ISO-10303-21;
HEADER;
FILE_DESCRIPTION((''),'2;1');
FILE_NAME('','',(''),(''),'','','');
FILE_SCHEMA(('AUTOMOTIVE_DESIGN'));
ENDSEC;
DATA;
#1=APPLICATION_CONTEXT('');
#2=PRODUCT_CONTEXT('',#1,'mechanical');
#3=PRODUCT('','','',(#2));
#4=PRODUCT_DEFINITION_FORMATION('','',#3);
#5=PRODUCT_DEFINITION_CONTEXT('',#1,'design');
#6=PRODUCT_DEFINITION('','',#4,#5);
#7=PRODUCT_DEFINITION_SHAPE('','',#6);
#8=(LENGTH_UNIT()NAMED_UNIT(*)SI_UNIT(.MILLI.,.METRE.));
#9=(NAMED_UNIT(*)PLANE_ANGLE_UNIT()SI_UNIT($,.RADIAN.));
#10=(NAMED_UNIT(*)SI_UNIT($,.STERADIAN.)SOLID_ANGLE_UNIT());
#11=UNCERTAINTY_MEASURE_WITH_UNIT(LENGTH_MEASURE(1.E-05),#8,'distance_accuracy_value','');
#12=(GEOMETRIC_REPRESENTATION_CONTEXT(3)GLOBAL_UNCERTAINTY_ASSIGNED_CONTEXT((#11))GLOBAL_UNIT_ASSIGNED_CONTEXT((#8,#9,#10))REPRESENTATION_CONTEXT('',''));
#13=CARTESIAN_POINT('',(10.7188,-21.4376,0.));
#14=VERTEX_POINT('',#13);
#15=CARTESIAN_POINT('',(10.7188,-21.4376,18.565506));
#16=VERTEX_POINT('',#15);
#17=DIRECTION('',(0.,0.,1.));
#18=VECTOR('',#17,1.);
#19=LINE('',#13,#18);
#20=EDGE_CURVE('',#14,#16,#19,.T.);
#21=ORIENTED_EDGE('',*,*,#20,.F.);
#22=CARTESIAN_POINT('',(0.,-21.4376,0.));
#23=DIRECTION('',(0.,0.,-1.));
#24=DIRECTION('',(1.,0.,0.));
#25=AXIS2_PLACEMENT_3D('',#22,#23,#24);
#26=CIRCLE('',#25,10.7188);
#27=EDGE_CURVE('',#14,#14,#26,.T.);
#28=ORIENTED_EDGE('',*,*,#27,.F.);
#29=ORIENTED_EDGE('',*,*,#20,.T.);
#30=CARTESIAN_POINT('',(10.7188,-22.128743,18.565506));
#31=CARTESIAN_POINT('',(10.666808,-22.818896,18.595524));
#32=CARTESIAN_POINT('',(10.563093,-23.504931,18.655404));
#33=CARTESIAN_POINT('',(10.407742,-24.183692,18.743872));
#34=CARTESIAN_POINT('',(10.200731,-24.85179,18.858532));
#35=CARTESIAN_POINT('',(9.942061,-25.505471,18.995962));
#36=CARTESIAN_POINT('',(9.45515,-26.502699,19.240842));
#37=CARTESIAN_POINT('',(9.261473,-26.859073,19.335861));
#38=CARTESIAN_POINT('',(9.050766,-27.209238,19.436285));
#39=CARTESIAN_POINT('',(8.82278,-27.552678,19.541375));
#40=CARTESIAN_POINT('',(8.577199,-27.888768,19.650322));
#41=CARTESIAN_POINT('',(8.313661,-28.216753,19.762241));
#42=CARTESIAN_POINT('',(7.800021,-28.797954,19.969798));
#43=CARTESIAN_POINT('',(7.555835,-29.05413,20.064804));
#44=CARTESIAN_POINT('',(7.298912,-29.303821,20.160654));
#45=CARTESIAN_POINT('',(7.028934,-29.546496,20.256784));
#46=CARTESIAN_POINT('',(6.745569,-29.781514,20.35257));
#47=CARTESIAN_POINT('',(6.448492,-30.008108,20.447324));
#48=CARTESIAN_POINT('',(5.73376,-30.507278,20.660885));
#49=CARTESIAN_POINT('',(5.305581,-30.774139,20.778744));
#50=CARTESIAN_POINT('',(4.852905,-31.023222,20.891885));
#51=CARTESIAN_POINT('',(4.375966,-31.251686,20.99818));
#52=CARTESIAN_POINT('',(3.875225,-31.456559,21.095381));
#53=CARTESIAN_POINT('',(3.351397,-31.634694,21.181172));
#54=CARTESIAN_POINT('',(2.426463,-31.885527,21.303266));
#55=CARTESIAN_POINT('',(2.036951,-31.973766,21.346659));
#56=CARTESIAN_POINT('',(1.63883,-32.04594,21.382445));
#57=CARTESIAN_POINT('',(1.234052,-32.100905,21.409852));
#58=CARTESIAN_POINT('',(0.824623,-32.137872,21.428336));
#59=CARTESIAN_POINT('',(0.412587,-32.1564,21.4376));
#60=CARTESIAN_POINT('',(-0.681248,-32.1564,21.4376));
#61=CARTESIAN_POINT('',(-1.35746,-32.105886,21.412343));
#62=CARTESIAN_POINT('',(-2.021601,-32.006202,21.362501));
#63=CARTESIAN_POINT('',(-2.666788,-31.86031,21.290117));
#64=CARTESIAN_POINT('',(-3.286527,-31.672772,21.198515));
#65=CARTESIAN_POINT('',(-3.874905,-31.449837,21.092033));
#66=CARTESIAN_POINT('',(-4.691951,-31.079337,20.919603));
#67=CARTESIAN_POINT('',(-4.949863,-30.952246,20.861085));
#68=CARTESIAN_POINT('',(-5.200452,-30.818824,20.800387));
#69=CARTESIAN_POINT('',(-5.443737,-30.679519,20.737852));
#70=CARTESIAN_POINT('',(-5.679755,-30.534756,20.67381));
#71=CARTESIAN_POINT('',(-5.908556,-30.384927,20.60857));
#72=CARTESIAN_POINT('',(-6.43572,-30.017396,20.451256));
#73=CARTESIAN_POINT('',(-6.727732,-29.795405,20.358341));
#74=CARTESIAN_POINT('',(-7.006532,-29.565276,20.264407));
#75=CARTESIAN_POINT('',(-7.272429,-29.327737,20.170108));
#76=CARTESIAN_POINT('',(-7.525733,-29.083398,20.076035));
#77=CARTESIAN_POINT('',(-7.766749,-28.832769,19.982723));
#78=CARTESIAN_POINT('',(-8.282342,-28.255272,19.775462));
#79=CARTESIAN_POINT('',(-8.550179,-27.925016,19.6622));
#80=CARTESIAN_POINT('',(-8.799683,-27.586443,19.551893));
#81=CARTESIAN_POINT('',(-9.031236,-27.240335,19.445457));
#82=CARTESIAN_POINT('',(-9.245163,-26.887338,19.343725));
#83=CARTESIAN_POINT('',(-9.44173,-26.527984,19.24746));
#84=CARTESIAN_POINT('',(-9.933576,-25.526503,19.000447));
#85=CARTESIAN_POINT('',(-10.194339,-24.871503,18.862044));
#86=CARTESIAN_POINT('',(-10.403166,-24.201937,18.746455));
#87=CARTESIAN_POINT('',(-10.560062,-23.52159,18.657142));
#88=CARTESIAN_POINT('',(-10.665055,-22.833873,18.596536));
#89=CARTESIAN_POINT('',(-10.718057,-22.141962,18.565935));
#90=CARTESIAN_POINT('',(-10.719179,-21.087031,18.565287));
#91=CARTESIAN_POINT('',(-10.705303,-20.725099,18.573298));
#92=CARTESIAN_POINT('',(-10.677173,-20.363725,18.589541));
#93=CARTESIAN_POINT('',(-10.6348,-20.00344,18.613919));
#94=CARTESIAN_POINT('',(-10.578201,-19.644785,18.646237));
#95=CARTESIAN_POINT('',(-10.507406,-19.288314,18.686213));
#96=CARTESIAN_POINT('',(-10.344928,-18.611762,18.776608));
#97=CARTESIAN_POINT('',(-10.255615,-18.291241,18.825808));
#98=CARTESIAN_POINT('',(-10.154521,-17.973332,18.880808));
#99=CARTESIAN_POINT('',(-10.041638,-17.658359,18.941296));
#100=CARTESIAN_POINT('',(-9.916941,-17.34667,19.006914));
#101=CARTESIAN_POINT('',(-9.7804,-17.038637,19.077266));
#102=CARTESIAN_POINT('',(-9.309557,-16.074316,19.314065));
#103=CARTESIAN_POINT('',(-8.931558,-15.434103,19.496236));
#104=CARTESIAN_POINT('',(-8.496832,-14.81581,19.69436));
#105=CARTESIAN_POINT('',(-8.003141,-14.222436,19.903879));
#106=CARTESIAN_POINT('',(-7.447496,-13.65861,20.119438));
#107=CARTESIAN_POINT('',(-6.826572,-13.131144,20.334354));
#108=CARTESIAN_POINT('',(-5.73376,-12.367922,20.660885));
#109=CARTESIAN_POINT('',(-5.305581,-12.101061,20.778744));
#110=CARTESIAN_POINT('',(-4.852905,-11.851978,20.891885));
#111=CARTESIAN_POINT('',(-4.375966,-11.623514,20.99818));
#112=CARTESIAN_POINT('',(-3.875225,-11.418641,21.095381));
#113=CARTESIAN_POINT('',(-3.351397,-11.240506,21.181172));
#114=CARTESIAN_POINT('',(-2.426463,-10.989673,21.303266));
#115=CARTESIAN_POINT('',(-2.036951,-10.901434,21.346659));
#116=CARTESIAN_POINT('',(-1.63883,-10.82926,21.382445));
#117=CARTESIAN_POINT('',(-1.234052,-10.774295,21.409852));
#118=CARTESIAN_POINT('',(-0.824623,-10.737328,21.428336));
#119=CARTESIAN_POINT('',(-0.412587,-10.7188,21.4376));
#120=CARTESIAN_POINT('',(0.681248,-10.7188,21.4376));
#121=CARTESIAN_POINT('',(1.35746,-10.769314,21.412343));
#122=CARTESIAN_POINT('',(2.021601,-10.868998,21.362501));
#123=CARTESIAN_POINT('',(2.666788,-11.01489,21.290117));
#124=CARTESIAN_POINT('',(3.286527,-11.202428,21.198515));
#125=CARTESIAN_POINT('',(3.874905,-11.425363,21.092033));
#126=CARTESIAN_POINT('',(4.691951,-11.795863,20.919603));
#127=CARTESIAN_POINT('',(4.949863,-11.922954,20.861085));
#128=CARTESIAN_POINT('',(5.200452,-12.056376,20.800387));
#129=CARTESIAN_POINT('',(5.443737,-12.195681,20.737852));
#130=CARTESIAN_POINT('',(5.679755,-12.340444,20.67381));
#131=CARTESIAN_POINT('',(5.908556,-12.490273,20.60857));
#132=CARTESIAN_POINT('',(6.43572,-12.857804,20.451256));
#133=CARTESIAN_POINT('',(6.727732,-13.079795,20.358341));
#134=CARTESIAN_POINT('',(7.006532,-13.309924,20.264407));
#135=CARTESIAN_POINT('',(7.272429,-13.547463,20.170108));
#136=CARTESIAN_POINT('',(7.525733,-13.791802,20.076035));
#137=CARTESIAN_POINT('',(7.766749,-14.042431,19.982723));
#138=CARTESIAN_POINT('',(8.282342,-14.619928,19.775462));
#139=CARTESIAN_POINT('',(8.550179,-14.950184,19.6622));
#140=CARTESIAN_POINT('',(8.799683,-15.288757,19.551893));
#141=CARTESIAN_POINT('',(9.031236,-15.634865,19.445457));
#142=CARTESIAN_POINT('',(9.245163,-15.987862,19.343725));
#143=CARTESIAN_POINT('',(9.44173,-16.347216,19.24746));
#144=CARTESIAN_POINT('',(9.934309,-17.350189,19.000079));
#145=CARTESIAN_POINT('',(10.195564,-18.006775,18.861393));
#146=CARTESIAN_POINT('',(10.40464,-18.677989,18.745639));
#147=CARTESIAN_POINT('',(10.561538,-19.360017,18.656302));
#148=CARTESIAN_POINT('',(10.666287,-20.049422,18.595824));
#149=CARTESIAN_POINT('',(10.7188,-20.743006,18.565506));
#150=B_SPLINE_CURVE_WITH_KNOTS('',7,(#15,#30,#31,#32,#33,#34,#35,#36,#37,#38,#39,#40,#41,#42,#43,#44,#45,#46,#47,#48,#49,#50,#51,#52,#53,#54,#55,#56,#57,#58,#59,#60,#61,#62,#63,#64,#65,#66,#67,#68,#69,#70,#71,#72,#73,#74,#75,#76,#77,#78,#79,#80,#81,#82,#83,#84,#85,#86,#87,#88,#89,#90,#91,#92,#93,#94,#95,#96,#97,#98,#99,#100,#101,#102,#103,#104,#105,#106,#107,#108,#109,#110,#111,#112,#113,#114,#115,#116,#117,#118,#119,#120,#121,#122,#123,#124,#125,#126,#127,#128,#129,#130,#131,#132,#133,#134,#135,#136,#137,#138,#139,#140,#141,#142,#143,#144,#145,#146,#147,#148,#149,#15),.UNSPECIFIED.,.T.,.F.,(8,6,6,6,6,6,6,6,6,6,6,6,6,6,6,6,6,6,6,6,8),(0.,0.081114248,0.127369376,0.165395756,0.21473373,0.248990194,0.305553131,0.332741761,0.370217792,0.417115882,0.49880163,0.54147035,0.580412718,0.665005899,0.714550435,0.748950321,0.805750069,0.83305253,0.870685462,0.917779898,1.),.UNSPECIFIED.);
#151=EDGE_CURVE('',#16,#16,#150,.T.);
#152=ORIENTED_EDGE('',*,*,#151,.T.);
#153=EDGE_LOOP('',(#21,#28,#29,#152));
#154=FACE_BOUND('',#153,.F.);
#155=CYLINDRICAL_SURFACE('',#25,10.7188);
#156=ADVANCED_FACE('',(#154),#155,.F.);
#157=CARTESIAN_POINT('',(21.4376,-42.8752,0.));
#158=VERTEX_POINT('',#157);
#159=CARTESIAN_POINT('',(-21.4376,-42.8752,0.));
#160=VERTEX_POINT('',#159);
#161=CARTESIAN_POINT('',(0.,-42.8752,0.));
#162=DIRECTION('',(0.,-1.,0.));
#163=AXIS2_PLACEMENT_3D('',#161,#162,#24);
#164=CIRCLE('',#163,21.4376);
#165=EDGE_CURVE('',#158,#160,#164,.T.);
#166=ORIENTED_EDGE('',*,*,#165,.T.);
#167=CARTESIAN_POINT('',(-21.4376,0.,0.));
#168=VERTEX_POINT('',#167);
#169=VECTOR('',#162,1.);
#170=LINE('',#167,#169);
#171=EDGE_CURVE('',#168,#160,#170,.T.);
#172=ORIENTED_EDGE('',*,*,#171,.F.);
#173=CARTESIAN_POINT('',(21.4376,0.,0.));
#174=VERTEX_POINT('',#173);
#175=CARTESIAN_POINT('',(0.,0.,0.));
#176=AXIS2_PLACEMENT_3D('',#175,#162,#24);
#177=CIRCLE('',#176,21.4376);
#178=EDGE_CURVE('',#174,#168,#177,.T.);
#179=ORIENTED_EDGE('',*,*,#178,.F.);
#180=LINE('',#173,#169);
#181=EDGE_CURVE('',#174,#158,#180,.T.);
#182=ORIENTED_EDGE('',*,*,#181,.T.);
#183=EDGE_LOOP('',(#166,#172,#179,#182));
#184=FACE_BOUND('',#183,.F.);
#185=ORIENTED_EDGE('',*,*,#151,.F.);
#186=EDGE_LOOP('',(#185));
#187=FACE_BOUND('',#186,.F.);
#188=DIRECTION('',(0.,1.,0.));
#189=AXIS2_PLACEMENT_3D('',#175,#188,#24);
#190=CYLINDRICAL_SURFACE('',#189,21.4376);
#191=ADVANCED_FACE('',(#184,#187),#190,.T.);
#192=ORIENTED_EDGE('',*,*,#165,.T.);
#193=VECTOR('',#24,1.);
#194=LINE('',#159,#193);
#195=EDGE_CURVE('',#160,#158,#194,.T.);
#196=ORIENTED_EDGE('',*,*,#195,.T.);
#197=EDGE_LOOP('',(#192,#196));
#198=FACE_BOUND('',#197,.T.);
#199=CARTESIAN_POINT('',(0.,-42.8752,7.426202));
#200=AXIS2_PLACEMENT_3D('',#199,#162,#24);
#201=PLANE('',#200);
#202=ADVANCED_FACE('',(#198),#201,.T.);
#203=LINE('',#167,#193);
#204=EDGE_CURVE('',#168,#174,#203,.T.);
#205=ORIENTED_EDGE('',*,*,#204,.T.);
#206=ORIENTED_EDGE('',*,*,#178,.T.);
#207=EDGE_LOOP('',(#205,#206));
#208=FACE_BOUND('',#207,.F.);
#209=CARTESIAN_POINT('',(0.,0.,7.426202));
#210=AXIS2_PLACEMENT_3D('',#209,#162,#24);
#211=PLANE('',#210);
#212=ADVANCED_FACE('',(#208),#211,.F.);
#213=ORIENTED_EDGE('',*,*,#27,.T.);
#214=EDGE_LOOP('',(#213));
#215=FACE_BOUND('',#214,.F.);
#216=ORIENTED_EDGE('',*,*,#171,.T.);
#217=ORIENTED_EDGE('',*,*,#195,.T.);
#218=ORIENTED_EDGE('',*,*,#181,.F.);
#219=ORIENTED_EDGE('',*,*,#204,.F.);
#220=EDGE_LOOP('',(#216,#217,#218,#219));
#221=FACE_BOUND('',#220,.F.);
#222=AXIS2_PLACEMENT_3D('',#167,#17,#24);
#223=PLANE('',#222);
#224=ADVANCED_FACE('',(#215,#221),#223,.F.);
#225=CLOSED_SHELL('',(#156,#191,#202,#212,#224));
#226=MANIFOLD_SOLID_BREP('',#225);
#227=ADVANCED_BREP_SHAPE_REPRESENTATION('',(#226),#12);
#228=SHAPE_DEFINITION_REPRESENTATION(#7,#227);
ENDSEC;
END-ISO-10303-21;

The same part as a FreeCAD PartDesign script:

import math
import FreeCAD as App
import Part
import Sketcher
Q = App.Units.Quantity

doc = App.newDocument("Part")
body = doc.addObject("PartDesign::Body", "Body")

# Sketch on XZ plane
sketch1 = doc.addObject("Sketcher::SketchObject", "Sketch")
body.addObject(sketch1)
sketch1.AttachmentSupport = (doc.XZ_Plane, [""])
sketch1.MapMode = "FlatFace"
sketch1.addGeometry(Part.LineSegment(App.Vector(-21, 0, 0), App.Vector(21, 0, 0)), False)
sketch1.addGeometry(Part.ArcOfCircle(Part.Circle(App.Vector(0, 0, 0), App.Vector(0, 0, 1), 21), math.radians(0), math.radians(180)), False)
sketch1.addConstraint(Sketcher.Constraint("Coincident", 0, 1, 1, 2))
sketch1.addConstraint(Sketcher.Constraint("Coincident", 1, 1, 0, 2))
sketch1.addConstraint(Sketcher.Constraint("Horizontal", 0))
sketch1.addConstraint(Sketcher.Constraint("Coincident", 1, 3, -1, 1))
sketch1.addConstraint(Sketcher.Constraint("PointOnObject", 0, 1, -1))
sketch1.addConstraint(Sketcher.Constraint("Radius", 1, Q("0.844 in")))
pad1 = doc.addObject("PartDesign::Pad", "Pad")
body.addObject(pad1)
pad1.Profile = sketch1
pad1.Length = Q("1.688 in")

# Sketch on XY plane
sketch2 = doc.addObject("Sketcher::SketchObject", "Sketch001")
body.addObject(sketch2)
sketch2.AttachmentSupport = (doc.XY_Plane, [""])
sketch2.MapMode = "FlatFace"
sketch2.addGeometry(Part.Circle(App.Vector(0, -21, 0), App.Vector(0, 0, 1), 11), False)
sketch2.addConstraint(Sketcher.Constraint("PointOnObject", 0, 3, -2))
sketch2.addConstraint(Sketcher.Constraint("Diameter", 0, Q("0.844 in")))
sketch2.addConstraint(Sketcher.Constraint("DistanceY", 0, 3, -1, 1, Q("0.844 in")))
pocket1 = doc.addObject("PartDesign::Pocket", "Pocket")
body.addObject(pocket1)
pocket1.Profile = sketch2
pocket1.Type = "ThroughAll"
pocket1.Reversed = True

doc.recompute()
